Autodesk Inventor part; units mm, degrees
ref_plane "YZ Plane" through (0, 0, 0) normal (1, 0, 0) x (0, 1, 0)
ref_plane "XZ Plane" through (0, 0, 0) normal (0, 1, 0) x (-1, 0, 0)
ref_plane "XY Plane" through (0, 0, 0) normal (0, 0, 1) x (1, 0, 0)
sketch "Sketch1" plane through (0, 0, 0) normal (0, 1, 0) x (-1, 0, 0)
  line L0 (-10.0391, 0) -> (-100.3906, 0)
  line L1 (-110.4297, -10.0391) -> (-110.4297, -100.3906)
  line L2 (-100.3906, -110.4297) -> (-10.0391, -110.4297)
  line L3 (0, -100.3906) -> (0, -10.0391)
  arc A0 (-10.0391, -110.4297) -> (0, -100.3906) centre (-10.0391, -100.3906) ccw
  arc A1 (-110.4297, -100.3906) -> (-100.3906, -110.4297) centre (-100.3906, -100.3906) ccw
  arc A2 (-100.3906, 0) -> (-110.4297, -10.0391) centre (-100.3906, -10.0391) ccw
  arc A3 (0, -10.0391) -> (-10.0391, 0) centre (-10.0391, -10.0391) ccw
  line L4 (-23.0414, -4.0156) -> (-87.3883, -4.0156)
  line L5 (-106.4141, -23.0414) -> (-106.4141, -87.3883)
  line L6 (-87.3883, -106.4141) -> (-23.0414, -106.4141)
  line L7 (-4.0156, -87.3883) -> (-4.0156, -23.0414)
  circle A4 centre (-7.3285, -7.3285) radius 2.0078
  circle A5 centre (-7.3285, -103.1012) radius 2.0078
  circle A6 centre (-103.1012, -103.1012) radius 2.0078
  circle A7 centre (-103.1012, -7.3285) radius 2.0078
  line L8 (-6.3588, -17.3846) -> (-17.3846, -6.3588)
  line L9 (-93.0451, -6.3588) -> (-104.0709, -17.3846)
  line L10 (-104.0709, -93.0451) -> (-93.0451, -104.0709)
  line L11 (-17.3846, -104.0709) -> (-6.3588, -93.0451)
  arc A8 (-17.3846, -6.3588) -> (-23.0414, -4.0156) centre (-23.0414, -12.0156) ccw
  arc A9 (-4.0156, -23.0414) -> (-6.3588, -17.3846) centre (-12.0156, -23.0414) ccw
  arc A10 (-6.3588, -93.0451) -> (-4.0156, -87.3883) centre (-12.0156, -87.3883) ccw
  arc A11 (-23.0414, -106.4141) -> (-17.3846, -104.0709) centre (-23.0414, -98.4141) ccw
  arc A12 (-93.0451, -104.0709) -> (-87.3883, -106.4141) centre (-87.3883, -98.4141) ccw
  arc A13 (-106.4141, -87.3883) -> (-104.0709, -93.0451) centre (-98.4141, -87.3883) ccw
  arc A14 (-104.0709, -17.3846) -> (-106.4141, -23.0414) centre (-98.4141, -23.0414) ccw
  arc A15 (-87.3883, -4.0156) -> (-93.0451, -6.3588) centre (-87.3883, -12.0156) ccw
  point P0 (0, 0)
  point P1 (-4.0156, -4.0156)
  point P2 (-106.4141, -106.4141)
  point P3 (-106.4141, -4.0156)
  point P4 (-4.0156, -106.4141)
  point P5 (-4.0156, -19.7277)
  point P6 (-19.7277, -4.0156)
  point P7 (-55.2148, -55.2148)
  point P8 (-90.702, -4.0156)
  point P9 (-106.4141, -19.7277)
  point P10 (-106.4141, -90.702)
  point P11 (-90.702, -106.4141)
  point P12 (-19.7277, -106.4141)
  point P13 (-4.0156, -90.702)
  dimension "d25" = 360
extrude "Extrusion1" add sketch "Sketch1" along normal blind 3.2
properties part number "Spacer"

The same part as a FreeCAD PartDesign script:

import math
import FreeCAD as App
import Part
import Sketcher
Q = App.Units.Quantity

doc = App.newDocument("Part")
params = doc.addObject("Spreadsheet::Sheet", "Params")
for row, (alias, value) in enumerate([
    ("sketch1_radius", "8 mm"),
    ("pad1_length", "3.2 mm"),
], start=1):
    params.set(f"A{row}", alias)
    params.set(f"B{row}", "=" + value)
    params.setAlias(f"B{row}", alias)

body = doc.addObject("PartDesign::Body", "Body")

# Sketch on XZ plane
sketch1 = body.newObject("Sketcher::SketchObject", "Sketch")
sketch1.AttachmentSupport = (doc.getObject("XZ_Plane"), [""])
sketch1.MapMode = "FlatFace"
sketch1.addGeometry(Part.ArcOfCircle(Part.Circle(App.Vector(10.0391, -10.0391, 0), App.Vector(0, 0, 1), 10.0391), math.radians(90), math.radians(180)), False)
sketch1.addGeometry(Part.LineSegment(App.Vector(10.0391, 0, 0), App.Vector(100.3906, 0, 0)), False)
sketch1.addGeometry(Part.ArcOfCircle(Part.Circle(App.Vector(100.3906, -10.0391, 0), App.Vector(0, 0, 1), 10.0391), math.radians(0), math.radians(90)), False)
sketch1.addGeometry(Part.LineSegment(App.Vector(110.4297, -10.0391, 0), App.Vector(110.4297, -100.3906, 0)), False)
sketch1.addGeometry(Part.ArcOfCircle(Part.Circle(App.Vector(100.3906, -100.3906, 0), App.Vector(0, 0, 1), 10.0391), math.radians(-90), math.radians(0)), False)
sketch1.addGeometry(Part.LineSegment(App.Vector(100.3906, -110.4297, 0), App.Vector(10.0391, -110.4297, 0)), False)
sketch1.addGeometry(Part.ArcOfCircle(Part.Circle(App.Vector(10.0391, -100.3906, 0), App.Vector(0, 0, 1), 10.0391), math.radians(180), math.radians(270)), False)
sketch1.addGeometry(Part.LineSegment(App.Vector(0, -100.3906, 0), App.Vector(0, -10.0391, 0)), False)
sketch1.addGeometry(Part.Circle(App.Vector(103.1012, -103.1012, 0), App.Vector(0, 0, 1), 2.0078), False)
sketch1.addGeometry(Part.LineSegment(App.Vector(87.3883, -4.0156, 0), App.Vector(23.0414, -4.0156, 0)), False)
sketch1.addGeometry(Part.ArcOfCircle(Part.Circle(App.Vector(23.0414, -12.0156, 0), App.Vector(0, 0, 1), 7.999923), math.radians(90), math.radians(135)), False)
sketch1.addGeometry(Part.LineSegment(App.Vector(17.3846, -6.3588, 0), App.Vector(6.3588, -17.3846, 0)), False)
sketch1.addGeometry(Part.ArcOfCircle(Part.Circle(App.Vector(12.0156, -23.0414, 0), App.Vector(0, 0, 1), 8), math.radians(135), math.radians(180)), False)
sketch1.addGeometry(Part.LineSegment(App.Vector(4.0156, -23.0414, 0), App.Vector(4.0156, -87.3883, 0)), False)
sketch1.addGeometry(Part.ArcOfCircle(Part.Circle(App.Vector(12.0156, -87.3883, 0), App.Vector(0, 0, 1), 7.999923), math.radians(180), math.radians(225)), False)
sketch1.addGeometry(Part.LineSegment(App.Vector(6.3588, -93.0451, 0), App.Vector(17.3846, -104.0709, 0)), False)
sketch1.addGeometry(Part.ArcOfCircle(Part.Circle(App.Vector(23.0414, -98.4141, 0), App.Vector(0, 0, 1), 8), math.radians(-135), math.radians(-90)), False)
sketch1.addGeometry(Part.LineSegment(App.Vector(23.0414, -106.4141, 0), App.Vector(87.3883, -106.4141, 0)), False)
sketch1.addGeometry(Part.ArcOfCircle(Part.Circle(App.Vector(87.3883, -98.4141, 0), App.Vector(0, 0, 1), 7.999923), math.radians(-90), math.radians(-45)), False)
sketch1.addGeometry(Part.LineSegment(App.Vector(93.0451, -104.0709, 0), App.Vector(104.0709, -93.0451, 0)), False)
sketch1.addGeometry(Part.ArcOfCircle(Part.Circle(App.Vector(98.4141, -87.3883, 0), App.Vector(0, 0, 1), 8), math.radians(-45), math.radians(0)), False)
sketch1.addGeometry(Part.LineSegment(App.Vector(106.4141, -87.3883, 0), App.Vector(106.4141, -23.0414, 0)), False)
sketch1.addGeometry(Part.ArcOfCircle(Part.Circle(App.Vector(98.4141, -23.0414, 0), App.Vector(0, 0, 1), 7.999923), math.radians(0), math.radians(45)), False)
sketch1.addGeometry(Part.LineSegment(App.Vector(104.0709, -17.3846, 0), App.Vector(93.0451, -6.3588, 0)), False)
sketch1.addGeometry(Part.ArcOfCircle(Part.Circle(App.Vector(87.3883, -12.0156, 0), App.Vector(0, 0, 1), 8), math.radians(45), math.radians(90)), False)
sketch1.addGeometry(Part.Circle(App.Vector(7.3285, -103.1012, 0), App.Vector(0, 0, 1), 2.0078), False)
sketch1.addGeometry(Part.Circle(App.Vector(103.1012, -7.3285, 0), App.Vector(0, 0, 1), 2.0078), False)
sketch1.addGeometry(Part.Circle(App.Vector(7.3285, -7.3285, 0), App.Vector(0, 0, 1), 2.0078), False)
sketch1.addConstraint(Sketcher.Constraint("Tangent", 0, 1, 1, 1))
sketch1.addConstraint(Sketcher.Constraint("Tangent", 1, 2, 2, 2))
sketch1.addConstraint(Sketcher.Constraint("Tangent", 2, 1, 3, 1))
sketch1.addConstraint(Sketcher.Constraint("Tangent", 3, 2, 4, 2))
sketch1.addConstraint(Sketcher.Constraint("Tangent", 4, 1, 5, 1))
sketch1.addConstraint(Sketcher.Constraint("Tangent", 5, 2, 6, 2))
sketch1.addConstraint(Sketcher.Constraint("Tangent", 6, 1, 7, 1))
sketch1.addConstraint(Sketcher.Constraint("Tangent", 7, 2, 0, 2))
sketch1.addConstraint(Sketcher.Constraint("Tangent", 9, 2, 10, 1))
sketch1.addConstraint(Sketcher.Constraint("Tangent", 10, 2, 11, 1))
sketch1.addConstraint(Sketcher.Constraint("Tangent", 11, 2, 12, 1))
sketch1.addConstraint(Sketcher.Constraint("Tangent", 12, 2, 13, 1))
sketch1.addConstraint(Sketcher.Constraint("Tangent", 13, 2, 14, 1))
sketch1.addConstraint(Sketcher.Constraint("Tangent", 14, 2, 15, 1))
sketch1.addConstraint(Sketcher.Constraint("Tangent", 15, 2, 16, 1))
sketch1.addConstraint(Sketcher.Constraint("Tangent", 16, 2, 17, 1))
sketch1.addConstraint(Sketcher.Constraint("Tangent", 17, 2, 18, 1))
sketch1.addConstraint(Sketcher.Constraint("Tangent", 18, 2, 19, 1))
sketch1.addConstraint(Sketcher.Constraint("Tangent", 19, 2, 20, 1))
sketch1.addConstraint(Sketcher.Constraint("Tangent", 20, 2, 21, 1))
sketch1.addConstraint(Sketcher.Constraint("Tangent", 21, 2, 22, 1))
sketch1.addConstraint(Sketcher.Constraint("Tangent", 22, 2, 23, 1))
sketch1.addConstraint(Sketcher.Constraint("Tangent", 23, 2, 24, 1))
sketch1.addConstraint(Sketcher.Constraint("Tangent", 24, 2, 9, 1))
sketch1.addConstraint(Sketcher.Constraint("Horizontal", 1))
sketch1.addConstraint(Sketcher.Constraint("Vertical", 3))
sketch1.addConstraint(Sketcher.Constraint("Horizontal", 5))
sketch1.addConstraint(Sketcher.Constraint("Vertical", 7))
sketch1.addConstraint(Sketcher.Constraint("Horizontal", 9))
sketch1.addConstraint(Sketcher.Constraint("Vertical", 13))
sketch1.addConstraint(Sketcher.Constraint("Horizontal", 17))
sketch1.addConstraint(Sketcher.Constraint("Vertical", 21))
sketch1.addConstraint(Sketcher.Constraint("Equal", 0, 2))
sketch1.addConstraint(Sketcher.Constraint("Equal", 2, 4))
sketch1.addConstraint(Sketcher.Constraint("Equal", 4, 6))
sketch1.addConstraint(Sketcher.Constraint("Equal", 10, 12))
sketch1.addConstraint(Sketcher.Constraint("Equal", 12, 14))
sketch1.addConstraint(Sketcher.Constraint("Equal", 14, 16))
sketch1.addConstraint(Sketcher.Constraint("Equal", 16, 18))
sketch1.addConstraint(Sketcher.Constraint("Equal", 18, 20))
sketch1.addConstraint(Sketcher.Constraint("Equal", 20, 22))
sketch1.addConstraint(Sketcher.Constraint("Equal", 22, 24))
sketch1.addConstraint(Sketcher.Constraint("Equal", 8, 25))
sketch1.addConstraint(Sketcher.Constraint("Equal", 25, 26))
sketch1.addConstraint(Sketcher.Constraint("Equal", 26, 27))
sketch1.addConstraint(Sketcher.Constraint("PointOnObject", 0, 1, -1))
sketch1.addConstraint(Sketcher.Constraint("PointOnObject", 6, 1, -2))
sketch1.addConstraint(Sketcher.Constraint("Perpendicular", 11, 15))
sketch1.addConstraint(Sketcher.Constraint("Perpendicular", 15, 19))
sketch1.addConstraint(Sketcher.Constraint("Perpendicular", 19, 23))
sketch1.addConstraint(Sketcher.Constraint("Horizontal", 14, 3, 20, 3))
sketch1.addConstraint(Sketcher.Constraint("Horizontal", 12, 3, 22, 3))
sketch1.addConstraint(Sketcher.Constraint("Horizontal", 8, 3, 25, 3))
sketch1.addConstraint(Sketcher.Constraint("Horizontal", 26, 3, 27, 3))
sketch1.addConstraint(Sketcher.Constraint("Horizontal", 15, 2, 18, 2))
sketch1.addConstraint(Sketcher.Constraint("Vertical", 10, 3, 16, 3))
sketch1.addConstraint(Sketcher.Constraint("Vertical", 8, 3, 26, 3))
sketch1.addConstraint(Sketcher.Constraint("Vertical", 25, 3, 27, 3))
sketch1.addConstraint(Sketcher.Constraint("Equal", 5, 3))
sketch1.addConstraint(Sketcher.Constraint("Equal", 17, 13))
sketch1.addConstraint(Sketcher.Constraint("Radius", 10, Q("8 mm")))
sketch1.addConstraint(Sketcher.Constraint("Radius", 0, Q("10.039 mm")))
sketch1.addConstraint(Sketcher.Constraint("Diameter", 8, Q("4.0156 mm")))
sketch1.addConstraint(Sketcher.Constraint("DistanceX", 9, 2, 9, 1, Q("64.347 mm")))
sketch1.addConstraint(Sketcher.Constraint("DistanceX", 1, 1, 1, 2, Q("90.3515 mm")))
sketch1.addConstraint(Sketcher.Constraint("DistanceY", 16, 3, -1, 1, Q("98.414 mm")))
sketch1.addConstraint(Sketcher.Constraint("DistanceX", -1, 1, 20, 3, Q("98.414 mm")))
sketch1.addConstraint(Sketcher.Constraint("DistanceY", 14, 2, -1, 1, Q("93.045 mm")))
sketch1.addConstraint(Sketcher.Constraint("DistanceY", 8, 3, 2, 3, Q("93.062 mm")))
sketch1.addConstraint(Sketcher.Constraint("DistanceX", 6, 3, 8, 3, Q("93.062 mm")))
sketch1.addConstraint(Sketcher.Constraint("DistanceX", 25, 3, 16, 3, Q("15.713 mm")))
sketch1.addConstraint(Sketcher.Constraint("DistanceY", 22, 3, 26, 3, Q("15.713 mm")))
sketch1.setExpression("Constraints[60]", "Params.sketch1_radius")
pad1 = body.newObject("PartDesign::Pad", "Pad")
pad1.Profile = sketch1
pad1.setExpression("Length", "Params.pad1_length")
pad1.Reversed = True

doc.recompute()
